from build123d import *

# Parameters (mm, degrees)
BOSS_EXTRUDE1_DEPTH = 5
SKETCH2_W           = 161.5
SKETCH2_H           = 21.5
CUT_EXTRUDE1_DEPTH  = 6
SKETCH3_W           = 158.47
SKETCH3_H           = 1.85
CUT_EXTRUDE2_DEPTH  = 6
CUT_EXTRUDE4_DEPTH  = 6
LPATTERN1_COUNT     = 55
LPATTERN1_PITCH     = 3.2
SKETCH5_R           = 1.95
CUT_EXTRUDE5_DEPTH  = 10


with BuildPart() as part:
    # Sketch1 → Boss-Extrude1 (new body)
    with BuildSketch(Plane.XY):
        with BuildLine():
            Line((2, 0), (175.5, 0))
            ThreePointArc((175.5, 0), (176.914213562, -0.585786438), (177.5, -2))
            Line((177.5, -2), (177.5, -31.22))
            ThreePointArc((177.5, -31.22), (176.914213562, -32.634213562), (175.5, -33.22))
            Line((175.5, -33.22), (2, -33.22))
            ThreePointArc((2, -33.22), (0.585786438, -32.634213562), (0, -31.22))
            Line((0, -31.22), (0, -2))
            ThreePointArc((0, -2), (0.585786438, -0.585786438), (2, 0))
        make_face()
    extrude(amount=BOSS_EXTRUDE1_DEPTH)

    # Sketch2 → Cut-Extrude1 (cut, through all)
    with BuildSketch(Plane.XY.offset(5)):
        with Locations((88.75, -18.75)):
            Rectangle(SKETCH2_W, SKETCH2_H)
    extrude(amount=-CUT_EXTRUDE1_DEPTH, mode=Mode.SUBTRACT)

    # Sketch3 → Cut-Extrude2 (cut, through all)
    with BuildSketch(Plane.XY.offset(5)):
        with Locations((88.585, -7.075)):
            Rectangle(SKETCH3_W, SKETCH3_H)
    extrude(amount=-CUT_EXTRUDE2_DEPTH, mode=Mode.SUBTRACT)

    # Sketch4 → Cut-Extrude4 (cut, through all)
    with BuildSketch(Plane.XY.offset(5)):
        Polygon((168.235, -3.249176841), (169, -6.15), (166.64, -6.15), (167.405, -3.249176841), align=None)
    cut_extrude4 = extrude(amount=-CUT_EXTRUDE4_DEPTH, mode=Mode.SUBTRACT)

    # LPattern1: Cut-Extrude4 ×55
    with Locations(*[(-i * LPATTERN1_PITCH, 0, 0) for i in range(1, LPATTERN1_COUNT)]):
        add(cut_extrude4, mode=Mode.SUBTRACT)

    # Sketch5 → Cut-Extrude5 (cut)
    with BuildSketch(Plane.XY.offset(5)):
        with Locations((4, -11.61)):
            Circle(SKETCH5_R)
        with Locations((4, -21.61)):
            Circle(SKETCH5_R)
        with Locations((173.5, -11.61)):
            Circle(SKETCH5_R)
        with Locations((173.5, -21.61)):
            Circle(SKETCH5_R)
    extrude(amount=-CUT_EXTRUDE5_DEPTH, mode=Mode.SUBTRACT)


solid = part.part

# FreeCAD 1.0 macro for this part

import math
import FreeCAD as App
import Part
import Sketcher

V = App.Vector


def add_polygon(sketch, points):
    """Adds a closed chain of lines whose ends are joined by coincident constraints."""
    first, n = sketch.GeometryCount, len(points)
    for a, b in zip(points, points[1:] + points[:1]):
        sketch.addGeometry(Part.LineSegment(App.Vector(*a, 0), App.Vector(*b, 0)), False)
    for i in range(n):
        sketch.addConstraint(Sketcher.Constraint("Coincident", first + i, 2, first + (i + 1) % n, 1))

doc = App.newDocument("Part")
body = doc.addObject("PartDesign::Body", "Body")

# Sketch on XY plane
sketch1 = body.newObject("Sketcher::SketchObject", "Sketch")
sketch1.AttachmentSupport = (doc.getObject("XY_Plane"), [""])
sketch1.MapMode = "FlatFace"
sketch1.addGeometry([
    Part.LineSegment(V(175.5, 0, 0), V(2, 0, 0)),  # 0
    Part.ArcOfCircle(Part.Circle(V(2, -2, 0), V(0, 0, 1), 2), math.radians(90), math.radians(180)),  # 1
    Part.LineSegment(V(0, -2, 0), V(0, -31.2, 0)),  # 2
    Part.ArcOfCircle(Part.Circle(V(2, -31.2, 0), V(0, 0, 1), 2), math.radians(-180), math.radians(-90)),  # 3
    Part.LineSegment(V(2, -33.2, 0), V(175.5, -33.2, 0)),  # 4
    Part.ArcOfCircle(Part.Circle(V(175.5, -31.2, 0), V(0, 0, 1), 2), math.radians(-90), math.radians(0)),  # 5
    Part.LineSegment(V(177.5, -31.2, 0), V(177.5, -2, 0)),  # 6
    Part.ArcOfCircle(Part.Circle(V(175.5, -2, 0), V(0, 0, 1), 2), math.radians(0), math.radians(90)),  # 7
], False)
sketch1.addConstraint([
    Sketcher.Constraint("Tangent", 0, 2, 1, 1),
    Sketcher.Constraint("Tangent", 1, 2, 2, 1),
    Sketcher.Constraint("Tangent", 2, 2, 3, 1),
    Sketcher.Constraint("Tangent", 3, 2, 4, 1),
    Sketcher.Constraint("Tangent", 4, 2, 5, 1),
    Sketcher.Constraint("Tangent", 5, 2, 6, 1),
    Sketcher.Constraint("Tangent", 6, 2, 7, 1),
    Sketcher.Constraint("Tangent", 7, 2, 0, 1),
    Sketcher.Constraint("Horizontal", 0),
    Sketcher.Constraint("Vertical", 2),
    Sketcher.Constraint("Horizontal", 4),
    Sketcher.Constraint("Vertical", 6),
    Sketcher.Constraint("Equal", 1, 3),
    Sketcher.Constraint("Equal", 3, 5),
    Sketcher.Constraint("Equal", 5, 7),
    Sketcher.Constraint("PointOnObject", 0, 2, -1),
    Sketcher.Constraint("PointOnObject", 1, 2, -2),
    Sketcher.Constraint("Radius", 1, 2.0),
    Sketcher.Constraint("DistanceX", 0, 2, 0, 1, 173.5),
    Sketcher.Constraint("DistanceY", 2, 2, 2, 1, 29.22),
])
pad1 = body.newObject("PartDesign::Pad", "Pad")
pad1.Profile = sketch1
pad1.Length = 5

# Sketch on XY plane
sketch2 = body.newObject("Sketcher::SketchObject", "Sketch001")
sketch2.AttachmentSupport = (doc.getObject("XY_Plane"), [""])
sketch2.MapMode = "FlatFace"
sketch2.AttachmentOffset = App.Placement(V(0, 0, 5), App.Rotation())
add_polygon(sketch2, [(8, -8), (8, -30), (170, -30), (170, -8)])  # lines 0-3
sketch2.addConstraint([
    Sketcher.Constraint("Vertical", 0),
    Sketcher.Constraint("Horizontal", 1),
    Sketcher.Constraint("Vertical", 2),
    Sketcher.Constraint("Horizontal", 3),
    Sketcher.Constraint("DistanceX", 1, 1, 1, 2, 161.5),
    Sketcher.Constraint("DistanceY", 0, 2, 0, 1, 21.5),
    Sketcher.Constraint("DistanceX", -1, 1, 0, 2, 8.0),
    Sketcher.Constraint("DistanceY", 2, 2, -1, 1, 8.0),
])
pocket1 = body.newObject("PartDesign::Pocket", "Pocket")
pocket1.Profile = sketch2
pocket1.Type = "ThroughAll"

# Sketch on XY plane
sketch3 = body.newObject("Sketcher::SketchObject", "Sketch002")
sketch3.AttachmentSupport = (doc.getObject("XY_Plane"), [""])
sketch3.MapMode = "FlatFace"
sketch3.AttachmentOffset = App.Placement(V(0, 0, 5), App.Rotation())
add_polygon(sketch3, [(9.3, -6.2), (9.3, -8), (167.8, -8), (167.8, -6.2)])  # lines 0-3
sketch3.addConstraint([
    Sketcher.Constraint("Vertical", 0),
    Sketcher.Constraint("Horizontal", 1),
    Sketcher.Constraint("Vertical", 2),
    Sketcher.Constraint("Horizontal", 3),
    Sketcher.Constraint("DistanceY", 0, 2, -1, 1, 8.0),
    Sketcher.Constraint("DistanceX", 1, 1, 1, 2, 158.47),
    Sketcher.Constraint("DistanceY", 0, 2, 0, 1, 1.85),
    Sketcher.Constraint("DistanceX", -1, 1, 0, 2, 9.35),
])
pocket2 = body.newObject("PartDesign::Pocket", "Pocket001")
pocket2.Profile = sketch3
pocket2.Type = "ThroughAll"

# Sketch on XY plane
sketch4 = body.newObject("Sketcher::SketchObject", "Sketch003")
sketch4.AttachmentSupport = (doc.getObject("XY_Plane"), [""])
sketch4.MapMode = "FlatFace"
sketch4.AttachmentOffset = App.Placement(V(0, 0, 5), App.Rotation())
add_polygon(sketch4, [(169, -6.2), (168.2, -3.2), (167.4, -3.2), (166.6, -6.2)])  # lines 0-3
sketch4.addConstraint([
    Sketcher.Constraint("Horizontal", 1),
    Sketcher.Constraint("Horizontal", 3),
    Sketcher.Constraint("Equal", 0, 2),
    Sketcher.Constraint("Distance", 0, 3.0),
    Sketcher.Constraint("DistanceX", -1, 1, 3, 2, 169.0),
    Sketcher.Constraint("DistanceX", 1, 2, 1, 1, 0.83),
    Sketcher.Constraint("DistanceX", 3, 1, 3, 2, 2.36),
    Sketcher.Constraint("DistanceY", 2, 2, -1, 1, 6.15),
])
pocket3 = body.newObject("PartDesign::Pocket", "Pocket002")
pocket3.Profile = sketch4
pocket3.Type = "ThroughAll"
doc.recompute()

linearpattern = body.newObject("PartDesign::LinearPattern", "LinearPattern")
linearpattern.Originals = [pocket3]
linearpattern.Direction = (doc.getObject("X_Axis"), [""])
linearpattern.Mode = "offset"
linearpattern.Offset = 3.2
linearpattern.Occurrences = 55
linearpattern.Reversed = True
body.Tip = linearpattern

# Sketch on XY plane
sketch5 = body.newObject("Sketcher::SketchObject", "Sketch004")
sketch5.AttachmentSupport = (doc.getObject("XY_Plane"), [""])
sketch5.MapMode = "FlatFace"
sketch5.AttachmentOffset = App.Placement(V(0, 0, 5), App.Rotation())
sketch5.addGeometry([
    Part.Circle(V(4, -11.6, 0), V(0, 0, 1), 1.9),
    Part.Circle(V(4, -21.6, 0), V(0, 0, 1), 1.9),
    Part.Circle(V(173.5, -11.6, 0), V(0, 0, 1), 1.9),
    Part.Circle(V(173.5, -21.6, 0), V(0, 0, 1), 1.9),
], False)
sketch5.addConstraint([
    Sketcher.Constraint("Equal", 0, 1),
    Sketcher.Constraint("Equal", 1, 2),
    Sketcher.Constraint("Equal", 2, 3),
    Sketcher.Constraint("Horizontal", 0, 3, 2, 3),
    Sketcher.Constraint("Horizontal", 1, 3, 3, 3),
    Sketcher.Constraint("Vertical", 0, 3, 1, 3),
    Sketcher.Constraint("Vertical", 2, 3, 3, 3),
    Sketcher.Constraint("Diameter", 0, 3.9),
    Sketcher.Constraint("DistanceX", -1, 1, 0, 3, 4.0),
    Sketcher.Constraint("DistanceY", 1, 3, 0, 3, 10.0),
    Sketcher.Constraint("DistanceX", -1, 1, 2, 3, 173.5),
    Sketcher.Constraint("DistanceY", 0, 3, -1, 1, 11.61),
])
pocket4 = body.newObject("PartDesign::Pocket", "Pocket003")
pocket4.Profile = sketch5
pocket4.Length = 10

doc.recompute()
